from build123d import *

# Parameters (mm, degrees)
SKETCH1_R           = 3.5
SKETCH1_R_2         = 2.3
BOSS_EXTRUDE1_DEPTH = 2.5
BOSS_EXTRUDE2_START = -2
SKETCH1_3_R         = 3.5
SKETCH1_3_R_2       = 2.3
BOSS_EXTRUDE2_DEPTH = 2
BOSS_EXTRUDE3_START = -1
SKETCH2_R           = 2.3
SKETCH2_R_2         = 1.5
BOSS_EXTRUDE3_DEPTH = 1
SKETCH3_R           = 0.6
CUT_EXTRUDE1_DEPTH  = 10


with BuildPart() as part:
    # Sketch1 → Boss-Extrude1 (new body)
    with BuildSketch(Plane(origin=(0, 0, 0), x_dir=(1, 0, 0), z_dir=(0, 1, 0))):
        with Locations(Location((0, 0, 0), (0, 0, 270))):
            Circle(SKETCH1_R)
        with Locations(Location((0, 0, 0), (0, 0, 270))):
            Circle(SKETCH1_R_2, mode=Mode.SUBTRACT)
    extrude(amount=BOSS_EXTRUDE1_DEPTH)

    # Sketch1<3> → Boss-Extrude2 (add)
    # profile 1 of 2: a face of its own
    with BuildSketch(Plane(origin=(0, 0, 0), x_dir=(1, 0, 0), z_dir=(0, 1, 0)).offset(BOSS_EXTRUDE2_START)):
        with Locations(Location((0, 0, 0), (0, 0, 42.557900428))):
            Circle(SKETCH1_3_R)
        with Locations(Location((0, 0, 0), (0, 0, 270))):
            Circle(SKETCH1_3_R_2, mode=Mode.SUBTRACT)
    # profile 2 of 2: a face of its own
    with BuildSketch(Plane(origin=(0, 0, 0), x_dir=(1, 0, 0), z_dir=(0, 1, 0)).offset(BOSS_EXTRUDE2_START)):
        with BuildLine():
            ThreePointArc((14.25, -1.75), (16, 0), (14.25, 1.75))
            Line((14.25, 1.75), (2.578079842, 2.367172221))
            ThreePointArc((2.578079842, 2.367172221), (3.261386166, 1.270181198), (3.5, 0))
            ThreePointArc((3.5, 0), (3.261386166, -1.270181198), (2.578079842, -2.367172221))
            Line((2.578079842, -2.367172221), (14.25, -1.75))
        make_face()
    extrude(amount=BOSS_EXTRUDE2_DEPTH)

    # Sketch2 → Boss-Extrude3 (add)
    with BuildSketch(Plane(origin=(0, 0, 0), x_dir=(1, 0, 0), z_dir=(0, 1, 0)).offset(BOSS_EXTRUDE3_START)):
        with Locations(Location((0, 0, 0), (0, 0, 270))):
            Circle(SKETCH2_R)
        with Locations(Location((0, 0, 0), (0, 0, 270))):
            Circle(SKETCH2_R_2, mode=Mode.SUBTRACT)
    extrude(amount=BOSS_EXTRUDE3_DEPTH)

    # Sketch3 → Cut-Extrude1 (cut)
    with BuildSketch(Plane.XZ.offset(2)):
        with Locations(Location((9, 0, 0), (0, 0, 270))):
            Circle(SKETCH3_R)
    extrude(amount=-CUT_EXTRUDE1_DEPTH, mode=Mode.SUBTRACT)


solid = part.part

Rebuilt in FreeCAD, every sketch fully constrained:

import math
import FreeCAD as App
import Part
import Sketcher

V = App.Vector
Q = App.Units.Quantity

doc = App.newDocument("Part")
body = doc.addObject("PartDesign::Body", "Body")

# Sketch on XZ plane
sketch1 = body.newObject("Sketcher::SketchObject", "Sketch")
sketch1.AttachmentSupport = (doc.getObject("XZ_Plane"), [""])
sketch1.MapMode = "FlatFace"
sketch1.addGeometry([
    Part.Circle(V(0, 0, 0), V(0, 0, 1), 3.5),
    Part.Circle(V(0, 0, 0), V(0, 0, 1), 2.3),
], False)
sketch1.addConstraint([
    Sketcher.Constraint("Coincident", 0, 3, -1, 1),
    Sketcher.Constraint("Coincident", 1, 3, -1, 1),
    Sketcher.Constraint("Diameter", 0, Q("7 mm")),
    Sketcher.Constraint("Diameter", 1, Q("4.6 mm")),
])
pad1 = body.newObject("PartDesign::Pad", "Pad")
pad1.Profile = sketch1
pad1.Length = 2.5
pad1.Reversed = True

# Sketch on XZ plane
sketch2 = body.newObject("Sketcher::SketchObject", "Sketch001")
sketch2.AttachmentSupport = (doc.getObject("XZ_Plane"), [""])
sketch2.MapMode = "FlatFace"
sketch2.AttachmentOffset = App.Placement(V(0, 0, 2), App.Rotation())
sketch2.addGeometry([
    Part.ArcOfCircle(Part.Circle(V(0, 0, 0), V(0, 0, 1), 3.5), math.radians(43), math.radians(317)),  # 0
    Part.LineSegment(V(2.6, 2.4, 0), V(14.2, 1.8, 0)),  # 1
    Part.ArcOfCircle(Part.Circle(V(14.2, 0, 0), V(0, 0, 1), 1.8), math.radians(-90), math.radians(90)),  # 2
    Part.LineSegment(V(14.2, -1.8, 0), V(2.6, -2.4, 0)),  # 3
    Part.Circle(V(0, 0, 0), V(0, 0, 1), 2.3),  # 4
], False)
sketch2.addConstraint([
    Sketcher.Constraint("Coincident", 0, 1, 1, 1),
    Sketcher.Constraint("Coincident", 1, 2, 2, 2),
    Sketcher.Constraint("Coincident", 2, 1, 3, 1),
    Sketcher.Constraint("Coincident", 3, 2, 0, 2),
    Sketcher.Constraint("Coincident", 0, 3, -1, 1),
    Sketcher.Constraint("Coincident", 4, 3, -1, 1),
    Sketcher.Constraint("Symmetric", 1, 2, 2, 1, -1),
    Sketcher.Constraint("Vertical", 2, 3, 1, 2),
    Sketcher.Constraint("Vertical", 0, 1, 3, 2),
    Sketcher.Constraint("Diameter", 4, Q("4.6 mm")),
    Sketcher.Constraint("Radius", 0, Q("3.5 mm")),
    Sketcher.Constraint("Radius", 2, Q("1.75 mm")),
    Sketcher.Constraint("DistanceX", -1, 1, 2, 3, Q("14.25 mm")),
    Sketcher.Constraint("DistanceX", -1, 1, 0, 1, Q("2.57808 mm")),
])
pad2 = body.newObject("PartDesign::Pad", "Pad001")
pad2.Profile = sketch2
pad2.Length = 2
pad2.Reversed = True

# Sketch on XZ plane
sketch3 = body.newObject("Sketcher::SketchObject", "Sketch002")
sketch3.AttachmentSupport = (doc.getObject("XZ_Plane"), [""])
sketch3.MapMode = "FlatFace"
sketch3.AttachmentOffset = App.Placement(V(0, 0, 1), App.Rotation())
sketch3.addGeometry([
    Part.Circle(V(0, 0, 0), V(0, 0, 1), 2.3),
    Part.Circle(V(0, 0, 0), V(0, 0, 1), 1.5),
], False)
sketch3.addConstraint([
    Sketcher.Constraint("Coincident", 0, 3, -1, 1),
    Sketcher.Constraint("Coincident", 1, 3, -1, 1),
    Sketcher.Constraint("Diameter", 1, Q("3 mm")),
    Sketcher.Constraint("Diameter", 0, Q("4.6 mm")),
])
pad3 = body.newObject("PartDesign::Pad", "Pad002")
pad3.Profile = sketch3
pad3.Length = 1
pad3.Reversed = True

# Sketch on XZ plane
sketch4 = body.newObject("Sketcher::SketchObject", "Sketch003")
sketch4.AttachmentSupport = (doc.getObject("XZ_Plane"), [""])
sketch4.MapMode = "FlatFace"
sketch4.AttachmentOffset = App.Placement(V(0, 0, 2), App.Rotation())
sketch4.addGeometry(Part.Circle(V(9, 0, 0), V(0, 0, 1), 0.6), False)
sketch4.addConstraint([
    Sketcher.Constraint("PointOnObject", 0, 3, -1),
    Sketcher.Constraint("Diameter", 0, Q("1.2 mm")),
    Sketcher.Constraint("DistanceX", -1, 1, 0, 3, Q("9 mm")),
])
pocket1 = body.newObject("PartDesign::Pocket", "Pocket")
pocket1.Profile = sketch4
pocket1.Length = 10

doc.recompute()
